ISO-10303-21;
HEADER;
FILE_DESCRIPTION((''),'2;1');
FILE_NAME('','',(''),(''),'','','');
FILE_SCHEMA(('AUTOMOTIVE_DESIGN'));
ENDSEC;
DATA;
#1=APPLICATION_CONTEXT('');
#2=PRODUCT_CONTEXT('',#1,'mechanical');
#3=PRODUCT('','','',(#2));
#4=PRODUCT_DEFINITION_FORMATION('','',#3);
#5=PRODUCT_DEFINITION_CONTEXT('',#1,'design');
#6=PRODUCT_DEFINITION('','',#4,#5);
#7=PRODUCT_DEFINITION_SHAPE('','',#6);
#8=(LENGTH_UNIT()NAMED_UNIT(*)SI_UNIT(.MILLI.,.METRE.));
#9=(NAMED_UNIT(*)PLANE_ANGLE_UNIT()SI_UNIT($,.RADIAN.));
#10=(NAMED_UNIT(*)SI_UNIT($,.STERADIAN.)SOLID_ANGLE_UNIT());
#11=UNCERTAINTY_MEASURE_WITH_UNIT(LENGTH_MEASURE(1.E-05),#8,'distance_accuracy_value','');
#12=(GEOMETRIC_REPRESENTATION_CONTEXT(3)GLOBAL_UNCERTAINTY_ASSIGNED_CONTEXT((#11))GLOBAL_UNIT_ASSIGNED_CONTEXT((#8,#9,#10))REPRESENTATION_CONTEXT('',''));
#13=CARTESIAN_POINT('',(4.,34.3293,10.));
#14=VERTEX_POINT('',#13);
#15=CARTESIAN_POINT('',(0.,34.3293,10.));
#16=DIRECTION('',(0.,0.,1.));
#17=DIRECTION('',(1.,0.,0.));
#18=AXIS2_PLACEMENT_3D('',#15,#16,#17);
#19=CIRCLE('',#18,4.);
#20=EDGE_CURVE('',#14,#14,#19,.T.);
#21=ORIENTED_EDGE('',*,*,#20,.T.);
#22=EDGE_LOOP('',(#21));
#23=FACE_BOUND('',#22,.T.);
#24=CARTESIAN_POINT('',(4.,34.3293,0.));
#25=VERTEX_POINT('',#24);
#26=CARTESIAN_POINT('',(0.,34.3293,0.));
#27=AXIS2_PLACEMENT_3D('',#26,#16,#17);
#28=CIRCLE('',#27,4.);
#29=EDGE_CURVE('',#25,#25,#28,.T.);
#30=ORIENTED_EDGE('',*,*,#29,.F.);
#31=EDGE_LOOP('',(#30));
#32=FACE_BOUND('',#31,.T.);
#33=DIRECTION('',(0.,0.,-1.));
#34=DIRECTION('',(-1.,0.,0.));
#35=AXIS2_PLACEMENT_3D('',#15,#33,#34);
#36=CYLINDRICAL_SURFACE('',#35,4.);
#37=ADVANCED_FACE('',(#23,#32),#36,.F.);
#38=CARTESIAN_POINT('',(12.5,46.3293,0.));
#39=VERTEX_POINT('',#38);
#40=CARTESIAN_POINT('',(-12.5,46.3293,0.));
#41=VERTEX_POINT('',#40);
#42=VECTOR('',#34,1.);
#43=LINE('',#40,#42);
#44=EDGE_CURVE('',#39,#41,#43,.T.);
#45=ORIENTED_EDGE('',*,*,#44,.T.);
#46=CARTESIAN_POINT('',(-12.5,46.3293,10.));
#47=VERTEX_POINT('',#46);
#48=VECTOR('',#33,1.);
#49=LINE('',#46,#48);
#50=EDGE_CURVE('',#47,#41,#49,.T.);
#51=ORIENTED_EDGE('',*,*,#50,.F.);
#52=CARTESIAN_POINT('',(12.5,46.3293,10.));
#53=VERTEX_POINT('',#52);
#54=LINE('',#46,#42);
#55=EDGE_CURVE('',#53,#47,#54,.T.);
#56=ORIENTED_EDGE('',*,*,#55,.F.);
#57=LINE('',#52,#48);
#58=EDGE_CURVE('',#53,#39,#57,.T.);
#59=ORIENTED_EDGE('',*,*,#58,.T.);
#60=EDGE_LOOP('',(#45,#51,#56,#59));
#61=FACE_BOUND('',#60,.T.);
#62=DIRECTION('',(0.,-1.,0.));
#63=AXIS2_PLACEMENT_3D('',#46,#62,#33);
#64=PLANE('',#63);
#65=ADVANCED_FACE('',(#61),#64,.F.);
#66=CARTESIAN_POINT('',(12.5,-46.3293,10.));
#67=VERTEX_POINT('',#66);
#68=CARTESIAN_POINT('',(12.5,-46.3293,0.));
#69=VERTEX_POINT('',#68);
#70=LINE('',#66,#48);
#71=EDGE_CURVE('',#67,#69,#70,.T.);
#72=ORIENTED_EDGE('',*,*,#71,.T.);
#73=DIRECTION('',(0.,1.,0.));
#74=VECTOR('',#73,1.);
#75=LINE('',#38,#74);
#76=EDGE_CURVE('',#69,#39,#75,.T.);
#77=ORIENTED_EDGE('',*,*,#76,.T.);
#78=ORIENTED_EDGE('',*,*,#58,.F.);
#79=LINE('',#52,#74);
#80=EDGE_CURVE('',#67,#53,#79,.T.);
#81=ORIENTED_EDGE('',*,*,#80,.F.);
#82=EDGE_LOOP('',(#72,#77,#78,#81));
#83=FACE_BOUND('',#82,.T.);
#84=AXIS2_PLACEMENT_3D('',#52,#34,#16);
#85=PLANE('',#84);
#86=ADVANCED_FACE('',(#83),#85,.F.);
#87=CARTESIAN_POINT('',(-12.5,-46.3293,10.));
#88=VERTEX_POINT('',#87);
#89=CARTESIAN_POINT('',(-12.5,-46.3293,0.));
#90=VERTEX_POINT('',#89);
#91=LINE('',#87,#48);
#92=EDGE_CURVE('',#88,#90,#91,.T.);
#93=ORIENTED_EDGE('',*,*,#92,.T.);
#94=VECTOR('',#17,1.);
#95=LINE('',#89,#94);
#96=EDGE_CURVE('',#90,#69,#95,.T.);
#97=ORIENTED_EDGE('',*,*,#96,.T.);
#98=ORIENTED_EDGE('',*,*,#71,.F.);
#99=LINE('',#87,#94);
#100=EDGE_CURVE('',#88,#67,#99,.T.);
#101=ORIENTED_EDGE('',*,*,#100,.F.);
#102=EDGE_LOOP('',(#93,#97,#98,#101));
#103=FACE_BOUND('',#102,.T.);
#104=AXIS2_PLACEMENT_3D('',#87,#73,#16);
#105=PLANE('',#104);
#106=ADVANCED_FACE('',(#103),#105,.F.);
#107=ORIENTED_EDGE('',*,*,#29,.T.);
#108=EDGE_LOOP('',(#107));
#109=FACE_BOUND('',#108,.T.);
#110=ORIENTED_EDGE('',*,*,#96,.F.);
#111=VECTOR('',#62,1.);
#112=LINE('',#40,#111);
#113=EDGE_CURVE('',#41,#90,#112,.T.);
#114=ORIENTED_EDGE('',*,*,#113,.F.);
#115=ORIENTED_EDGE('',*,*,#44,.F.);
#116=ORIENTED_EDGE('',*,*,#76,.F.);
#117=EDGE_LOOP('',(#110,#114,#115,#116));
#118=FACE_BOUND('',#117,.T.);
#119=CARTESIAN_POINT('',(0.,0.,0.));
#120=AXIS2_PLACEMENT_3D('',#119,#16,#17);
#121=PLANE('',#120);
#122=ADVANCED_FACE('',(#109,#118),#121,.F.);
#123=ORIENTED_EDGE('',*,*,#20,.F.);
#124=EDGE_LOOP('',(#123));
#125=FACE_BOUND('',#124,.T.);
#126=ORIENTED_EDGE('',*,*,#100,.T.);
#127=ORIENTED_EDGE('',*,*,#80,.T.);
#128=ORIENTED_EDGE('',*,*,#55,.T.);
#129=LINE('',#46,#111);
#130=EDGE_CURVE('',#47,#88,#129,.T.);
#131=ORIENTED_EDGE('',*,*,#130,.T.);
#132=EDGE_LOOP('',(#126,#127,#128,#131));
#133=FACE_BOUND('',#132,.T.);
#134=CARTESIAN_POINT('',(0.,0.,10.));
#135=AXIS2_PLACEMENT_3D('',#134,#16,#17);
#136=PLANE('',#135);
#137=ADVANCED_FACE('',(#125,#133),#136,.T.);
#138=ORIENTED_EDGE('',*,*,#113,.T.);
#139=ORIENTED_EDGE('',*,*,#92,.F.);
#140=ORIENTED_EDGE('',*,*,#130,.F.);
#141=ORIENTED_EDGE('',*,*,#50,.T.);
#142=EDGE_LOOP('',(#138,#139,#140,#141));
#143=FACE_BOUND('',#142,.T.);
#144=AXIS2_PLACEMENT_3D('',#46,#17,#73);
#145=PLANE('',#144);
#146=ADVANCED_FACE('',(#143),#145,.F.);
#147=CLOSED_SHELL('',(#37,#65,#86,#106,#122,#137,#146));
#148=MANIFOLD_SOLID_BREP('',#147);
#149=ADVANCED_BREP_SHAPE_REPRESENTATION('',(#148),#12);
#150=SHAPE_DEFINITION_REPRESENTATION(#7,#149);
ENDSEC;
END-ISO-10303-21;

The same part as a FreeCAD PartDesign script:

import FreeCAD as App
import Part
import Sketcher
from FreeCAD import Vector
Q = App.Units.Quantity


def add_polygon(sketch, points):
    """Adds a closed chain of lines whose ends are joined by coincident constraints."""
    first, n = sketch.GeometryCount, len(points)
    for a, b in zip(points, points[1:] + points[:1]):
        sketch.addGeometry(Part.LineSegment(App.Vector(*a, 0), App.Vector(*b, 0)), False)
    for i in range(n):
        sketch.addConstraint(Sketcher.Constraint("Coincident", first + i, 2, first + (i + 1) % n, 1))

doc = App.newDocument("Part")
params = doc.addObject("Spreadsheet::Sheet", "Params")
for row, (alias, value) in enumerate([
    ("sketch1_diameter", "8 mm"),
    ("sketch1_width", "25 mm"),
    ("pad1_length", "10 mm"),
], start=1):
    params.set(f"A{row}", alias)
    params.set(f"B{row}", "=" + value)
    params.setAlias(f"B{row}", alias)

body = doc.addObject("PartDesign::Body", "Body")

# Sketch on XY plane
sketch1 = body.newObject("Sketcher::SketchObject", "Sketch")
sketch1.AttachmentSupport = (doc.getObject("XY_Plane"), [""])
sketch1.MapMode = "FlatFace"
add_polygon(sketch1, [(-12.5, 46.3), (-12.5, -46.3), (12.5, -46.3), (12.5, 46.3)])  # lines 0-3
sketch1.addGeometry(Part.Circle(Vector(0, 34.3, 0), Vector(0, 0, 1), 4), False)  # 4
sketch1.addConstraint(Sketcher.Constraint("Vertical", 0))
sketch1.addConstraint(Sketcher.Constraint("Horizontal", 1))
sketch1.addConstraint(Sketcher.Constraint("Vertical", 2))
sketch1.addConstraint(Sketcher.Constraint("Horizontal", 3))
sketch1.addConstraint(Sketcher.Constraint("Symmetric", 0, 2, 2, 2, -1, 1))
sketch1.addConstraint(Sketcher.Constraint("PointOnObject", 4, 3, -2))
sketch1.addConstraint(Sketcher.Constraint("Diameter", 4, Q("8 mm")))
sketch1.addConstraint(Sketcher.Constraint("DistanceX", 1, 1, 1, 2, Q("25 mm")))
sketch1.addConstraint(Sketcher.Constraint("DistanceY", 4, 3, 2, 2, Q("12 mm")))
sketch1.addConstraint(Sketcher.Constraint("DistanceY", 0, 2, 0, 1, Q("92.6586 mm")))
sketch1.setExpression("Constraints[10]", "Params.sketch1_diameter")
sketch1.setExpression("Constraints[11]", "Params.sketch1_width")
pad1 = body.newObject("PartDesign::Pad", "Pad")
pad1.Profile = sketch1
pad1.setExpression("Length", "Params.pad1_length")

doc.recompute()
